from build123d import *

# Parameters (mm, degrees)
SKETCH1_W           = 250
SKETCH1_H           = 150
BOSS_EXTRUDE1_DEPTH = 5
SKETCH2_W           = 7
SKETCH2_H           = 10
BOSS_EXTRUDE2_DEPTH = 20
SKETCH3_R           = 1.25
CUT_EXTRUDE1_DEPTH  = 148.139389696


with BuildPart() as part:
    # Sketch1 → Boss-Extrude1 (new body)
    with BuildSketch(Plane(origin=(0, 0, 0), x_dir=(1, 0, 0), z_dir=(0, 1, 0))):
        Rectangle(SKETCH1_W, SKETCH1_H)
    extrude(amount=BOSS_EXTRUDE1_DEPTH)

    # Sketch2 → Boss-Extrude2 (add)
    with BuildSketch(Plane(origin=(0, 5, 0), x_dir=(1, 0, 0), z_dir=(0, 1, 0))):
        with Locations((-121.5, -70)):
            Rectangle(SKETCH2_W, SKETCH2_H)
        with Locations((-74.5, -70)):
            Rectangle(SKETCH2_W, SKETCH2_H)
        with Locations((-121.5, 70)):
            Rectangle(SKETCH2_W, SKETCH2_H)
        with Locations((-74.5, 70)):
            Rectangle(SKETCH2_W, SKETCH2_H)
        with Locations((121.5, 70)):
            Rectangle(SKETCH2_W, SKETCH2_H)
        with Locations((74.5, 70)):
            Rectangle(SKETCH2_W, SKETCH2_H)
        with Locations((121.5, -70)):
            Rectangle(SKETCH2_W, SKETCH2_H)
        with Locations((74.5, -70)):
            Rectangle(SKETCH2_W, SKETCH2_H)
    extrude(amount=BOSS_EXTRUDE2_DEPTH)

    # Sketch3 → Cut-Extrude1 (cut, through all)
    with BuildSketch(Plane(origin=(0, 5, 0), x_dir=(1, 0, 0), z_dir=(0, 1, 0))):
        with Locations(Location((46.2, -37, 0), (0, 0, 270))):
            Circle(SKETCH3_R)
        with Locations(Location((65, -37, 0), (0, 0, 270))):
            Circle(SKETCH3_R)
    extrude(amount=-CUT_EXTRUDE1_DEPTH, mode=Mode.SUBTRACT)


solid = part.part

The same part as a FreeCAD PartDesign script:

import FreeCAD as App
import Part
import Sketcher
Q = App.Units.Quantity

doc = App.newDocument("Part")
body = doc.addObject("PartDesign::Body", "Body")

# Sketch on XZ plane
sketch1 = body.newObject("Sketcher::SketchObject", "Sketch")
sketch1.AttachmentSupport = (doc.getObject("XZ_Plane"), [""])
sketch1.MapMode = "FlatFace"
sketch1.addGeometry(Part.LineSegment(App.Vector(-125, -75, 0), App.Vector(-125, 75, 0)), False)
sketch1.addGeometry(Part.LineSegment(App.Vector(-125, 75, 0), App.Vector(125, 75, 0)), False)
sketch1.addGeometry(Part.LineSegment(App.Vector(125, 75, 0), App.Vector(125, -75, 0)), False)
sketch1.addGeometry(Part.LineSegment(App.Vector(125, -75, 0), App.Vector(-125, -75, 0)), False)
sketch1.addConstraint(Sketcher.Constraint("Coincident", 0, 2, 1, 1))
sketch1.addConstraint(Sketcher.Constraint("Coincident", 1, 2, 2, 1))
sketch1.addConstraint(Sketcher.Constraint("Coincident", 2, 2, 3, 1))
sketch1.addConstraint(Sketcher.Constraint("Coincident", 3, 2, 0, 1))
sketch1.addConstraint(Sketcher.Constraint("Vertical", 0))
sketch1.addConstraint(Sketcher.Constraint("Horizontal", 1))
sketch1.addConstraint(Sketcher.Constraint("Vertical", 2))
sketch1.addConstraint(Sketcher.Constraint("Horizontal", 3))
sketch1.addConstraint(Sketcher.Constraint("Symmetric", 0, 2, 2, 2, -1, 1))
sketch1.addConstraint(Sketcher.Constraint("DistanceX", 1, 1, 1, 2, Q("250 mm")))
sketch1.addConstraint(Sketcher.Constraint("DistanceY", 0, 1, 0, 2, Q("150 mm")))
pad1 = body.newObject("PartDesign::Pad", "Pad")
pad1.Profile = sketch1
pad1.Length = 5
pad1.Reversed = True

# Sketch on XZ plane
sketch2 = body.newObject("Sketcher::SketchObject", "Sketch001")
sketch2.AttachmentSupport = (doc.getObject("XZ_Plane"), [""])
sketch2.MapMode = "FlatFace"
sketch2.AttachmentOffset = App.Placement(App.Vector(0, 0, -5), App.Rotation())
sketch2.addGeometry(Part.LineSegment(App.Vector(-125, 65, 0), App.Vector(-125, 75, 0)), False)
sketch2.addGeometry(Part.LineSegment(App.Vector(-125, 75, 0), App.Vector(-118, 75, 0)), False)
sketch2.addGeometry(Part.LineSegment(App.Vector(-118, 75, 0), App.Vector(-118, 65, 0)), False)
sketch2.addGeometry(Part.LineSegment(App.Vector(-118, 65, 0), App.Vector(-125, 65, 0)), False)
sketch2.addGeometry(Part.LineSegment(App.Vector(-78, 65, 0), App.Vector(-78, 75, 0)), False)
sketch2.addGeometry(Part.LineSegment(App.Vector(-78, 75, 0), App.Vector(-71, 75, 0)), False)
sketch2.addGeometry(Part.LineSegment(App.Vector(-71, 75, 0), App.Vector(-71, 65, 0)), False)
sketch2.addGeometry(Part.LineSegment(App.Vector(-71, 65, 0), App.Vector(-78, 65, 0)), False)
sketch2.addGeometry(Part.LineSegment(App.Vector(-125, -75, 0), App.Vector(-125, -65, 0)), False)
sketch2.addGeometry(Part.LineSegment(App.Vector(-125, -65, 0), App.Vector(-118, -65, 0)), False)
sketch2.addGeometry(Part.LineSegment(App.Vector(-118, -65, 0), App.Vector(-118, -75, 0)), False)
sketch2.addGeometry(Part.LineSegment(App.Vector(-118, -75, 0), App.Vector(-125, -75, 0)), False)
sketch2.addGeometry(Part.LineSegment(App.Vector(-78, -75, 0), App.Vector(-78, -65, 0)), False)
sketch2.addGeometry(Part.LineSegment(App.Vector(-78, -65, 0), App.Vector(-71, -65, 0)), False)
sketch2.addGeometry(Part.LineSegment(App.Vector(-71, -65, 0), App.Vector(-71, -75, 0)), False)
sketch2.addGeometry(Part.LineSegment(App.Vector(-71, -75, 0), App.Vector(-78, -75, 0)), False)
sketch2.addGeometry(Part.LineSegment(App.Vector(118, -75, 0), App.Vector(118, -65, 0)), False)
sketch2.addGeometry(Part.LineSegment(App.Vector(118, -65, 0), App.Vector(125, -65, 0)), False)
sketch2.addGeometry(Part.LineSegment(App.Vector(125, -65, 0), App.Vector(125, -75, 0)), False)
sketch2.addGeometry(Part.LineSegment(App.Vector(125, -75, 0), App.Vector(118, -75, 0)), False)
sketch2.addGeometry(Part.LineSegment(App.Vector(71, -75, 0), App.Vector(71, -65, 0)), False)
sketch2.addGeometry(Part.LineSegment(App.Vector(71, -65, 0), App.Vector(78, -65, 0)), False)
sketch2.addGeometry(Part.LineSegment(App.Vector(78, -65, 0), App.Vector(78, -75, 0)), False)
sketch2.addGeometry(Part.LineSegment(App.Vector(78, -75, 0), App.Vector(71, -75, 0)), False)
sketch2.addGeometry(Part.LineSegment(App.Vector(118, 65, 0), App.Vector(118, 75, 0)), False)
sketch2.addGeometry(Part.LineSegment(App.Vector(118, 75, 0), App.Vector(125, 75, 0)), False)
sketch2.addGeometry(Part.LineSegment(App.Vector(125, 75, 0), App.Vector(125, 65, 0)), False)
sketch2.addGeometry(Part.LineSegment(App.Vector(125, 65, 0), App.Vector(118, 65, 0)), False)
sketch2.addGeometry(Part.LineSegment(App.Vector(71, 65, 0), App.Vector(71, 75, 0)), False)
sketch2.addGeometry(Part.LineSegment(App.Vector(71, 75, 0), App.Vector(78, 75, 0)), False)
sketch2.addGeometry(Part.LineSegment(App.Vector(78, 75, 0), App.Vector(78, 65, 0)), False)
sketch2.addGeometry(Part.LineSegment(App.Vector(78, 65, 0), App.Vector(71, 65, 0)), False)
sketch2.addConstraint(Sketcher.Constraint("Coincident", 0, 2, 1, 1))
sketch2.addConstraint(Sketcher.Constraint("Coincident", 1, 2, 2, 1))
sketch2.addConstraint(Sketcher.Constraint("Coincident", 2, 2, 3, 1))
sketch2.addConstraint(Sketcher.Constraint("Coincident", 3, 2, 0, 1))
sketch2.addConstraint(Sketcher.Constraint("Coincident", 4, 2, 5, 1))
sketch2.addConstraint(Sketcher.Constraint("Coincident", 5, 2, 6, 1))
sketch2.addConstraint(Sketcher.Constraint("Coincident", 6, 2, 7, 1))
sketch2.addConstraint(Sketcher.Constraint("Coincident", 7, 2, 4, 1))
sketch2.addConstraint(Sketcher.Constraint("Coincident", 8, 2, 9, 1))
sketch2.addConstraint(Sketcher.Constraint("Coincident", 9, 2, 10, 1))
sketch2.addConstraint(Sketcher.Constraint("Coincident", 10, 2, 11, 1))
sketch2.addConstraint(Sketcher.Constraint("Coincident", 11, 2, 8, 1))
sketch2.addConstraint(Sketcher.Constraint("Coincident", 12, 2, 13, 1))
sketch2.addConstraint(Sketcher.Constraint("Coincident", 13, 2, 14, 1))
sketch2.addConstraint(Sketcher.Constraint("Coincident", 14, 2, 15, 1))
sketch2.addConstraint(Sketcher.Constraint("Coincident", 15, 2, 12, 1))
sketch2.addConstraint(Sketcher.Constraint("Coincident", 16, 2, 17, 1))
sketch2.addConstraint(Sketcher.Constraint("Coincident", 17, 2, 18, 1))
sketch2.addConstraint(Sketcher.Constraint("Coincident", 18, 2, 19, 1))
sketch2.addConstraint(Sketcher.Constraint("Coincident", 19, 2, 16, 1))
sketch2.addConstraint(Sketcher.Constraint("Coincident", 20, 2, 21, 1))
sketch2.addConstraint(Sketcher.Constraint("Coincident", 21, 2, 22, 1))
sketch2.addConstraint(Sketcher.Constraint("Coincident", 22, 2, 23, 1))
sketch2.addConstraint(Sketcher.Constraint("Coincident", 23, 2, 20, 1))
sketch2.addConstraint(Sketcher.Constraint("Coincident", 24, 2, 25, 1))
sketch2.addConstraint(Sketcher.Constraint("Coincident", 25, 2, 26, 1))
sketch2.addConstraint(Sketcher.Constraint("Coincident", 26, 2, 27, 1))
sketch2.addConstraint(Sketcher.Constraint("Coincident", 27, 2, 24, 1))
sketch2.addConstraint(Sketcher.Constraint("Coincident", 28, 2, 29, 1))
sketch2.addConstraint(Sketcher.Constraint("Coincident", 29, 2, 30, 1))
sketch2.addConstraint(Sketcher.Constraint("Coincident", 30, 2, 31, 1))
sketch2.addConstraint(Sketcher.Constraint("Coincident", 31, 2, 28, 1))
sketch2.addConstraint(Sketcher.Constraint("Vertical", 0))
sketch2.addConstraint(Sketcher.Constraint("Horizontal", 1))
sketch2.addConstraint(Sketcher.Constraint("Vertical", 2))
sketch2.addConstraint(Sketcher.Constraint("Horizontal", 3))
sketch2.addConstraint(Sketcher.Constraint("Vertical", 4))
sketch2.addConstraint(Sketcher.Constraint("Horizontal", 5))
sketch2.addConstraint(Sketcher.Constraint("Vertical", 6))
sketch2.addConstraint(Sketcher.Constraint("Horizontal", 7))
sketch2.addConstraint(Sketcher.Constraint("Vertical", 8))
sketch2.addConstraint(Sketcher.Constraint("Horizontal", 9))
sketch2.addConstraint(Sketcher.Constraint("Vertical", 10))
sketch2.addConstraint(Sketcher.Constraint("Horizontal", 11))
sketch2.addConstraint(Sketcher.Constraint("Vertical", 12))
sketch2.addConstraint(Sketcher.Constraint("Horizontal", 13))
sketch2.addConstraint(Sketcher.Constraint("Vertical", 14))
sketch2.addConstraint(Sketcher.Constraint("Horizontal", 15))
sketch2.addConstraint(Sketcher.Constraint("Vertical", 16))
sketch2.addConstraint(Sketcher.Constraint("Horizontal", 17))
sketch2.addConstraint(Sketcher.Constraint("Vertical", 18))
sketch2.addConstraint(Sketcher.Constraint("Horizontal", 19))
sketch2.addConstraint(Sketcher.Constraint("Vertical", 20))
sketch2.addConstraint(Sketcher.Constraint("Horizontal", 21))
sketch2.addConstraint(Sketcher.Constraint("Vertical", 22))
sketch2.addConstraint(Sketcher.Constraint("Horizontal", 23))
sketch2.addConstraint(Sketcher.Constraint("Vertical", 24))
sketch2.addConstraint(Sketcher.Constraint("Horizontal", 25))
sketch2.addConstraint(Sketcher.Constraint("Vertical", 26))
sketch2.addConstraint(Sketcher.Constraint("Horizontal", 27))
sketch2.addConstraint(Sketcher.Constraint("Vertical", 28))
sketch2.addConstraint(Sketcher.Constraint("Horizontal", 29))
sketch2.addConstraint(Sketcher.Constraint("Vertical", 30))
sketch2.addConstraint(Sketcher.Constraint("Horizontal", 31))
sketch2.addConstraint(Sketcher.Constraint("Symmetric", 2, 2, 16, 2, -1, 1))
sketch2.addConstraint(Sketcher.Constraint("Symmetric", 0, 2, 18, 2, -1, 1))
sketch2.addConstraint(Sketcher.Constraint("Symmetric", 6, 2, 20, 2, -1, 1))
sketch2.addConstraint(Sketcher.Constraint("Symmetric", 4, 2, 22, 2, -1, 1))
sketch2.addConstraint(Sketcher.Constraint("Symmetric", 10, 2, 24, 2, -1, 1))
sketch2.addConstraint(Sketcher.Constraint("Symmetric", 8, 2, 26, 2, -1, 1))
sketch2.addConstraint(Sketcher.Constraint("Symmetric", 14, 2, 28, 2, -1, 1))
sketch2.addConstraint(Sketcher.Constraint("Symmetric", 12, 2, 30, 2, -1, 1))
sketch2.addConstraint(Sketcher.Constraint("Symmetric", 9, 2, 16, 2, -2))
sketch2.addConstraint(Sketcher.Constraint("Symmetric", 11, 2, 18, 2, -2))
sketch2.addConstraint(Sketcher.Constraint("Symmetric", 13, 2, 20, 2, -2))
sketch2.addConstraint(Sketcher.Constraint("Symmetric", 15, 2, 22, 2, -2))
sketch2.addConstraint(Sketcher.Constraint("Horizontal", 1, 2, 4, 2))
sketch2.addConstraint(Sketcher.Constraint("Horizontal", 3, 2, 6, 2))
sketch2.addConstraint(Sketcher.Constraint("Equal", 3, 5))
sketch2.addConstraint(Sketcher.Constraint("DistanceX", 1, 1, 1, 2, Q("7 mm")))
sketch2.addConstraint(Sketcher.Constraint("DistanceY", 0, 1, 0, 2, Q("10 mm")))
sketch2.addConstraint(Sketcher.Constraint("DistanceX", 0, 2, -1, 1, Q("125 mm")))
sketch2.addConstraint(Sketcher.Constraint("DistanceY", -1, 1, 0, 2, Q("75 mm")))
sketch2.addConstraint(Sketcher.Constraint("DistanceX", 4, 2, -1, 1, Q("78 mm")))
pad2 = body.newObject("PartDesign::Pad", "Pad001")
pad2.Profile = sketch2
pad2.Length = 20
pad2.Reversed = True

# Sketch on XZ plane
sketch3 = body.newObject("Sketcher::SketchObject", "Sketch002")
sketch3.AttachmentSupport = (doc.getObject("XZ_Plane"), [""])
sketch3.MapMode = "FlatFace"
sketch3.AttachmentOffset = App.Placement(App.Vector(0, 0, -5), App.Rotation())
sketch3.addGeometry(Part.Circle(App.Vector(46.2, 37, 0), App.Vector(0, 0, 1), 1.2), False)
sketch3.addGeometry(Part.Circle(App.Vector(65, 37, 0), App.Vector(0, 0, 1), 1.2), False)
sketch3.addConstraint(Sketcher.Constraint("Equal", 0, 1))
sketch3.addConstraint(Sketcher.Constraint("Horizontal", 0, 3, 1, 3))
sketch3.addConstraint(Sketcher.Constraint("Diameter", 0, Q("2.5 mm")))
sketch3.addConstraint(Sketcher.Constraint("DistanceY", -1, 1, 0, 3, Q("37 mm")))
sketch3.addConstraint(Sketcher.Constraint("DistanceX", -1, 1, 1, 3, Q("65 mm")))
sketch3.addConstraint(Sketcher.Constraint("DistanceX", -1, 1, 0, 3, Q("46.2 mm")))
pocket1 = body.newObject("PartDesign::Pocket", "Pocket")
pocket1.Profile = sketch3
pocket1.Type = "ThroughAll"
pocket1.Reversed = True

doc.recompute()
